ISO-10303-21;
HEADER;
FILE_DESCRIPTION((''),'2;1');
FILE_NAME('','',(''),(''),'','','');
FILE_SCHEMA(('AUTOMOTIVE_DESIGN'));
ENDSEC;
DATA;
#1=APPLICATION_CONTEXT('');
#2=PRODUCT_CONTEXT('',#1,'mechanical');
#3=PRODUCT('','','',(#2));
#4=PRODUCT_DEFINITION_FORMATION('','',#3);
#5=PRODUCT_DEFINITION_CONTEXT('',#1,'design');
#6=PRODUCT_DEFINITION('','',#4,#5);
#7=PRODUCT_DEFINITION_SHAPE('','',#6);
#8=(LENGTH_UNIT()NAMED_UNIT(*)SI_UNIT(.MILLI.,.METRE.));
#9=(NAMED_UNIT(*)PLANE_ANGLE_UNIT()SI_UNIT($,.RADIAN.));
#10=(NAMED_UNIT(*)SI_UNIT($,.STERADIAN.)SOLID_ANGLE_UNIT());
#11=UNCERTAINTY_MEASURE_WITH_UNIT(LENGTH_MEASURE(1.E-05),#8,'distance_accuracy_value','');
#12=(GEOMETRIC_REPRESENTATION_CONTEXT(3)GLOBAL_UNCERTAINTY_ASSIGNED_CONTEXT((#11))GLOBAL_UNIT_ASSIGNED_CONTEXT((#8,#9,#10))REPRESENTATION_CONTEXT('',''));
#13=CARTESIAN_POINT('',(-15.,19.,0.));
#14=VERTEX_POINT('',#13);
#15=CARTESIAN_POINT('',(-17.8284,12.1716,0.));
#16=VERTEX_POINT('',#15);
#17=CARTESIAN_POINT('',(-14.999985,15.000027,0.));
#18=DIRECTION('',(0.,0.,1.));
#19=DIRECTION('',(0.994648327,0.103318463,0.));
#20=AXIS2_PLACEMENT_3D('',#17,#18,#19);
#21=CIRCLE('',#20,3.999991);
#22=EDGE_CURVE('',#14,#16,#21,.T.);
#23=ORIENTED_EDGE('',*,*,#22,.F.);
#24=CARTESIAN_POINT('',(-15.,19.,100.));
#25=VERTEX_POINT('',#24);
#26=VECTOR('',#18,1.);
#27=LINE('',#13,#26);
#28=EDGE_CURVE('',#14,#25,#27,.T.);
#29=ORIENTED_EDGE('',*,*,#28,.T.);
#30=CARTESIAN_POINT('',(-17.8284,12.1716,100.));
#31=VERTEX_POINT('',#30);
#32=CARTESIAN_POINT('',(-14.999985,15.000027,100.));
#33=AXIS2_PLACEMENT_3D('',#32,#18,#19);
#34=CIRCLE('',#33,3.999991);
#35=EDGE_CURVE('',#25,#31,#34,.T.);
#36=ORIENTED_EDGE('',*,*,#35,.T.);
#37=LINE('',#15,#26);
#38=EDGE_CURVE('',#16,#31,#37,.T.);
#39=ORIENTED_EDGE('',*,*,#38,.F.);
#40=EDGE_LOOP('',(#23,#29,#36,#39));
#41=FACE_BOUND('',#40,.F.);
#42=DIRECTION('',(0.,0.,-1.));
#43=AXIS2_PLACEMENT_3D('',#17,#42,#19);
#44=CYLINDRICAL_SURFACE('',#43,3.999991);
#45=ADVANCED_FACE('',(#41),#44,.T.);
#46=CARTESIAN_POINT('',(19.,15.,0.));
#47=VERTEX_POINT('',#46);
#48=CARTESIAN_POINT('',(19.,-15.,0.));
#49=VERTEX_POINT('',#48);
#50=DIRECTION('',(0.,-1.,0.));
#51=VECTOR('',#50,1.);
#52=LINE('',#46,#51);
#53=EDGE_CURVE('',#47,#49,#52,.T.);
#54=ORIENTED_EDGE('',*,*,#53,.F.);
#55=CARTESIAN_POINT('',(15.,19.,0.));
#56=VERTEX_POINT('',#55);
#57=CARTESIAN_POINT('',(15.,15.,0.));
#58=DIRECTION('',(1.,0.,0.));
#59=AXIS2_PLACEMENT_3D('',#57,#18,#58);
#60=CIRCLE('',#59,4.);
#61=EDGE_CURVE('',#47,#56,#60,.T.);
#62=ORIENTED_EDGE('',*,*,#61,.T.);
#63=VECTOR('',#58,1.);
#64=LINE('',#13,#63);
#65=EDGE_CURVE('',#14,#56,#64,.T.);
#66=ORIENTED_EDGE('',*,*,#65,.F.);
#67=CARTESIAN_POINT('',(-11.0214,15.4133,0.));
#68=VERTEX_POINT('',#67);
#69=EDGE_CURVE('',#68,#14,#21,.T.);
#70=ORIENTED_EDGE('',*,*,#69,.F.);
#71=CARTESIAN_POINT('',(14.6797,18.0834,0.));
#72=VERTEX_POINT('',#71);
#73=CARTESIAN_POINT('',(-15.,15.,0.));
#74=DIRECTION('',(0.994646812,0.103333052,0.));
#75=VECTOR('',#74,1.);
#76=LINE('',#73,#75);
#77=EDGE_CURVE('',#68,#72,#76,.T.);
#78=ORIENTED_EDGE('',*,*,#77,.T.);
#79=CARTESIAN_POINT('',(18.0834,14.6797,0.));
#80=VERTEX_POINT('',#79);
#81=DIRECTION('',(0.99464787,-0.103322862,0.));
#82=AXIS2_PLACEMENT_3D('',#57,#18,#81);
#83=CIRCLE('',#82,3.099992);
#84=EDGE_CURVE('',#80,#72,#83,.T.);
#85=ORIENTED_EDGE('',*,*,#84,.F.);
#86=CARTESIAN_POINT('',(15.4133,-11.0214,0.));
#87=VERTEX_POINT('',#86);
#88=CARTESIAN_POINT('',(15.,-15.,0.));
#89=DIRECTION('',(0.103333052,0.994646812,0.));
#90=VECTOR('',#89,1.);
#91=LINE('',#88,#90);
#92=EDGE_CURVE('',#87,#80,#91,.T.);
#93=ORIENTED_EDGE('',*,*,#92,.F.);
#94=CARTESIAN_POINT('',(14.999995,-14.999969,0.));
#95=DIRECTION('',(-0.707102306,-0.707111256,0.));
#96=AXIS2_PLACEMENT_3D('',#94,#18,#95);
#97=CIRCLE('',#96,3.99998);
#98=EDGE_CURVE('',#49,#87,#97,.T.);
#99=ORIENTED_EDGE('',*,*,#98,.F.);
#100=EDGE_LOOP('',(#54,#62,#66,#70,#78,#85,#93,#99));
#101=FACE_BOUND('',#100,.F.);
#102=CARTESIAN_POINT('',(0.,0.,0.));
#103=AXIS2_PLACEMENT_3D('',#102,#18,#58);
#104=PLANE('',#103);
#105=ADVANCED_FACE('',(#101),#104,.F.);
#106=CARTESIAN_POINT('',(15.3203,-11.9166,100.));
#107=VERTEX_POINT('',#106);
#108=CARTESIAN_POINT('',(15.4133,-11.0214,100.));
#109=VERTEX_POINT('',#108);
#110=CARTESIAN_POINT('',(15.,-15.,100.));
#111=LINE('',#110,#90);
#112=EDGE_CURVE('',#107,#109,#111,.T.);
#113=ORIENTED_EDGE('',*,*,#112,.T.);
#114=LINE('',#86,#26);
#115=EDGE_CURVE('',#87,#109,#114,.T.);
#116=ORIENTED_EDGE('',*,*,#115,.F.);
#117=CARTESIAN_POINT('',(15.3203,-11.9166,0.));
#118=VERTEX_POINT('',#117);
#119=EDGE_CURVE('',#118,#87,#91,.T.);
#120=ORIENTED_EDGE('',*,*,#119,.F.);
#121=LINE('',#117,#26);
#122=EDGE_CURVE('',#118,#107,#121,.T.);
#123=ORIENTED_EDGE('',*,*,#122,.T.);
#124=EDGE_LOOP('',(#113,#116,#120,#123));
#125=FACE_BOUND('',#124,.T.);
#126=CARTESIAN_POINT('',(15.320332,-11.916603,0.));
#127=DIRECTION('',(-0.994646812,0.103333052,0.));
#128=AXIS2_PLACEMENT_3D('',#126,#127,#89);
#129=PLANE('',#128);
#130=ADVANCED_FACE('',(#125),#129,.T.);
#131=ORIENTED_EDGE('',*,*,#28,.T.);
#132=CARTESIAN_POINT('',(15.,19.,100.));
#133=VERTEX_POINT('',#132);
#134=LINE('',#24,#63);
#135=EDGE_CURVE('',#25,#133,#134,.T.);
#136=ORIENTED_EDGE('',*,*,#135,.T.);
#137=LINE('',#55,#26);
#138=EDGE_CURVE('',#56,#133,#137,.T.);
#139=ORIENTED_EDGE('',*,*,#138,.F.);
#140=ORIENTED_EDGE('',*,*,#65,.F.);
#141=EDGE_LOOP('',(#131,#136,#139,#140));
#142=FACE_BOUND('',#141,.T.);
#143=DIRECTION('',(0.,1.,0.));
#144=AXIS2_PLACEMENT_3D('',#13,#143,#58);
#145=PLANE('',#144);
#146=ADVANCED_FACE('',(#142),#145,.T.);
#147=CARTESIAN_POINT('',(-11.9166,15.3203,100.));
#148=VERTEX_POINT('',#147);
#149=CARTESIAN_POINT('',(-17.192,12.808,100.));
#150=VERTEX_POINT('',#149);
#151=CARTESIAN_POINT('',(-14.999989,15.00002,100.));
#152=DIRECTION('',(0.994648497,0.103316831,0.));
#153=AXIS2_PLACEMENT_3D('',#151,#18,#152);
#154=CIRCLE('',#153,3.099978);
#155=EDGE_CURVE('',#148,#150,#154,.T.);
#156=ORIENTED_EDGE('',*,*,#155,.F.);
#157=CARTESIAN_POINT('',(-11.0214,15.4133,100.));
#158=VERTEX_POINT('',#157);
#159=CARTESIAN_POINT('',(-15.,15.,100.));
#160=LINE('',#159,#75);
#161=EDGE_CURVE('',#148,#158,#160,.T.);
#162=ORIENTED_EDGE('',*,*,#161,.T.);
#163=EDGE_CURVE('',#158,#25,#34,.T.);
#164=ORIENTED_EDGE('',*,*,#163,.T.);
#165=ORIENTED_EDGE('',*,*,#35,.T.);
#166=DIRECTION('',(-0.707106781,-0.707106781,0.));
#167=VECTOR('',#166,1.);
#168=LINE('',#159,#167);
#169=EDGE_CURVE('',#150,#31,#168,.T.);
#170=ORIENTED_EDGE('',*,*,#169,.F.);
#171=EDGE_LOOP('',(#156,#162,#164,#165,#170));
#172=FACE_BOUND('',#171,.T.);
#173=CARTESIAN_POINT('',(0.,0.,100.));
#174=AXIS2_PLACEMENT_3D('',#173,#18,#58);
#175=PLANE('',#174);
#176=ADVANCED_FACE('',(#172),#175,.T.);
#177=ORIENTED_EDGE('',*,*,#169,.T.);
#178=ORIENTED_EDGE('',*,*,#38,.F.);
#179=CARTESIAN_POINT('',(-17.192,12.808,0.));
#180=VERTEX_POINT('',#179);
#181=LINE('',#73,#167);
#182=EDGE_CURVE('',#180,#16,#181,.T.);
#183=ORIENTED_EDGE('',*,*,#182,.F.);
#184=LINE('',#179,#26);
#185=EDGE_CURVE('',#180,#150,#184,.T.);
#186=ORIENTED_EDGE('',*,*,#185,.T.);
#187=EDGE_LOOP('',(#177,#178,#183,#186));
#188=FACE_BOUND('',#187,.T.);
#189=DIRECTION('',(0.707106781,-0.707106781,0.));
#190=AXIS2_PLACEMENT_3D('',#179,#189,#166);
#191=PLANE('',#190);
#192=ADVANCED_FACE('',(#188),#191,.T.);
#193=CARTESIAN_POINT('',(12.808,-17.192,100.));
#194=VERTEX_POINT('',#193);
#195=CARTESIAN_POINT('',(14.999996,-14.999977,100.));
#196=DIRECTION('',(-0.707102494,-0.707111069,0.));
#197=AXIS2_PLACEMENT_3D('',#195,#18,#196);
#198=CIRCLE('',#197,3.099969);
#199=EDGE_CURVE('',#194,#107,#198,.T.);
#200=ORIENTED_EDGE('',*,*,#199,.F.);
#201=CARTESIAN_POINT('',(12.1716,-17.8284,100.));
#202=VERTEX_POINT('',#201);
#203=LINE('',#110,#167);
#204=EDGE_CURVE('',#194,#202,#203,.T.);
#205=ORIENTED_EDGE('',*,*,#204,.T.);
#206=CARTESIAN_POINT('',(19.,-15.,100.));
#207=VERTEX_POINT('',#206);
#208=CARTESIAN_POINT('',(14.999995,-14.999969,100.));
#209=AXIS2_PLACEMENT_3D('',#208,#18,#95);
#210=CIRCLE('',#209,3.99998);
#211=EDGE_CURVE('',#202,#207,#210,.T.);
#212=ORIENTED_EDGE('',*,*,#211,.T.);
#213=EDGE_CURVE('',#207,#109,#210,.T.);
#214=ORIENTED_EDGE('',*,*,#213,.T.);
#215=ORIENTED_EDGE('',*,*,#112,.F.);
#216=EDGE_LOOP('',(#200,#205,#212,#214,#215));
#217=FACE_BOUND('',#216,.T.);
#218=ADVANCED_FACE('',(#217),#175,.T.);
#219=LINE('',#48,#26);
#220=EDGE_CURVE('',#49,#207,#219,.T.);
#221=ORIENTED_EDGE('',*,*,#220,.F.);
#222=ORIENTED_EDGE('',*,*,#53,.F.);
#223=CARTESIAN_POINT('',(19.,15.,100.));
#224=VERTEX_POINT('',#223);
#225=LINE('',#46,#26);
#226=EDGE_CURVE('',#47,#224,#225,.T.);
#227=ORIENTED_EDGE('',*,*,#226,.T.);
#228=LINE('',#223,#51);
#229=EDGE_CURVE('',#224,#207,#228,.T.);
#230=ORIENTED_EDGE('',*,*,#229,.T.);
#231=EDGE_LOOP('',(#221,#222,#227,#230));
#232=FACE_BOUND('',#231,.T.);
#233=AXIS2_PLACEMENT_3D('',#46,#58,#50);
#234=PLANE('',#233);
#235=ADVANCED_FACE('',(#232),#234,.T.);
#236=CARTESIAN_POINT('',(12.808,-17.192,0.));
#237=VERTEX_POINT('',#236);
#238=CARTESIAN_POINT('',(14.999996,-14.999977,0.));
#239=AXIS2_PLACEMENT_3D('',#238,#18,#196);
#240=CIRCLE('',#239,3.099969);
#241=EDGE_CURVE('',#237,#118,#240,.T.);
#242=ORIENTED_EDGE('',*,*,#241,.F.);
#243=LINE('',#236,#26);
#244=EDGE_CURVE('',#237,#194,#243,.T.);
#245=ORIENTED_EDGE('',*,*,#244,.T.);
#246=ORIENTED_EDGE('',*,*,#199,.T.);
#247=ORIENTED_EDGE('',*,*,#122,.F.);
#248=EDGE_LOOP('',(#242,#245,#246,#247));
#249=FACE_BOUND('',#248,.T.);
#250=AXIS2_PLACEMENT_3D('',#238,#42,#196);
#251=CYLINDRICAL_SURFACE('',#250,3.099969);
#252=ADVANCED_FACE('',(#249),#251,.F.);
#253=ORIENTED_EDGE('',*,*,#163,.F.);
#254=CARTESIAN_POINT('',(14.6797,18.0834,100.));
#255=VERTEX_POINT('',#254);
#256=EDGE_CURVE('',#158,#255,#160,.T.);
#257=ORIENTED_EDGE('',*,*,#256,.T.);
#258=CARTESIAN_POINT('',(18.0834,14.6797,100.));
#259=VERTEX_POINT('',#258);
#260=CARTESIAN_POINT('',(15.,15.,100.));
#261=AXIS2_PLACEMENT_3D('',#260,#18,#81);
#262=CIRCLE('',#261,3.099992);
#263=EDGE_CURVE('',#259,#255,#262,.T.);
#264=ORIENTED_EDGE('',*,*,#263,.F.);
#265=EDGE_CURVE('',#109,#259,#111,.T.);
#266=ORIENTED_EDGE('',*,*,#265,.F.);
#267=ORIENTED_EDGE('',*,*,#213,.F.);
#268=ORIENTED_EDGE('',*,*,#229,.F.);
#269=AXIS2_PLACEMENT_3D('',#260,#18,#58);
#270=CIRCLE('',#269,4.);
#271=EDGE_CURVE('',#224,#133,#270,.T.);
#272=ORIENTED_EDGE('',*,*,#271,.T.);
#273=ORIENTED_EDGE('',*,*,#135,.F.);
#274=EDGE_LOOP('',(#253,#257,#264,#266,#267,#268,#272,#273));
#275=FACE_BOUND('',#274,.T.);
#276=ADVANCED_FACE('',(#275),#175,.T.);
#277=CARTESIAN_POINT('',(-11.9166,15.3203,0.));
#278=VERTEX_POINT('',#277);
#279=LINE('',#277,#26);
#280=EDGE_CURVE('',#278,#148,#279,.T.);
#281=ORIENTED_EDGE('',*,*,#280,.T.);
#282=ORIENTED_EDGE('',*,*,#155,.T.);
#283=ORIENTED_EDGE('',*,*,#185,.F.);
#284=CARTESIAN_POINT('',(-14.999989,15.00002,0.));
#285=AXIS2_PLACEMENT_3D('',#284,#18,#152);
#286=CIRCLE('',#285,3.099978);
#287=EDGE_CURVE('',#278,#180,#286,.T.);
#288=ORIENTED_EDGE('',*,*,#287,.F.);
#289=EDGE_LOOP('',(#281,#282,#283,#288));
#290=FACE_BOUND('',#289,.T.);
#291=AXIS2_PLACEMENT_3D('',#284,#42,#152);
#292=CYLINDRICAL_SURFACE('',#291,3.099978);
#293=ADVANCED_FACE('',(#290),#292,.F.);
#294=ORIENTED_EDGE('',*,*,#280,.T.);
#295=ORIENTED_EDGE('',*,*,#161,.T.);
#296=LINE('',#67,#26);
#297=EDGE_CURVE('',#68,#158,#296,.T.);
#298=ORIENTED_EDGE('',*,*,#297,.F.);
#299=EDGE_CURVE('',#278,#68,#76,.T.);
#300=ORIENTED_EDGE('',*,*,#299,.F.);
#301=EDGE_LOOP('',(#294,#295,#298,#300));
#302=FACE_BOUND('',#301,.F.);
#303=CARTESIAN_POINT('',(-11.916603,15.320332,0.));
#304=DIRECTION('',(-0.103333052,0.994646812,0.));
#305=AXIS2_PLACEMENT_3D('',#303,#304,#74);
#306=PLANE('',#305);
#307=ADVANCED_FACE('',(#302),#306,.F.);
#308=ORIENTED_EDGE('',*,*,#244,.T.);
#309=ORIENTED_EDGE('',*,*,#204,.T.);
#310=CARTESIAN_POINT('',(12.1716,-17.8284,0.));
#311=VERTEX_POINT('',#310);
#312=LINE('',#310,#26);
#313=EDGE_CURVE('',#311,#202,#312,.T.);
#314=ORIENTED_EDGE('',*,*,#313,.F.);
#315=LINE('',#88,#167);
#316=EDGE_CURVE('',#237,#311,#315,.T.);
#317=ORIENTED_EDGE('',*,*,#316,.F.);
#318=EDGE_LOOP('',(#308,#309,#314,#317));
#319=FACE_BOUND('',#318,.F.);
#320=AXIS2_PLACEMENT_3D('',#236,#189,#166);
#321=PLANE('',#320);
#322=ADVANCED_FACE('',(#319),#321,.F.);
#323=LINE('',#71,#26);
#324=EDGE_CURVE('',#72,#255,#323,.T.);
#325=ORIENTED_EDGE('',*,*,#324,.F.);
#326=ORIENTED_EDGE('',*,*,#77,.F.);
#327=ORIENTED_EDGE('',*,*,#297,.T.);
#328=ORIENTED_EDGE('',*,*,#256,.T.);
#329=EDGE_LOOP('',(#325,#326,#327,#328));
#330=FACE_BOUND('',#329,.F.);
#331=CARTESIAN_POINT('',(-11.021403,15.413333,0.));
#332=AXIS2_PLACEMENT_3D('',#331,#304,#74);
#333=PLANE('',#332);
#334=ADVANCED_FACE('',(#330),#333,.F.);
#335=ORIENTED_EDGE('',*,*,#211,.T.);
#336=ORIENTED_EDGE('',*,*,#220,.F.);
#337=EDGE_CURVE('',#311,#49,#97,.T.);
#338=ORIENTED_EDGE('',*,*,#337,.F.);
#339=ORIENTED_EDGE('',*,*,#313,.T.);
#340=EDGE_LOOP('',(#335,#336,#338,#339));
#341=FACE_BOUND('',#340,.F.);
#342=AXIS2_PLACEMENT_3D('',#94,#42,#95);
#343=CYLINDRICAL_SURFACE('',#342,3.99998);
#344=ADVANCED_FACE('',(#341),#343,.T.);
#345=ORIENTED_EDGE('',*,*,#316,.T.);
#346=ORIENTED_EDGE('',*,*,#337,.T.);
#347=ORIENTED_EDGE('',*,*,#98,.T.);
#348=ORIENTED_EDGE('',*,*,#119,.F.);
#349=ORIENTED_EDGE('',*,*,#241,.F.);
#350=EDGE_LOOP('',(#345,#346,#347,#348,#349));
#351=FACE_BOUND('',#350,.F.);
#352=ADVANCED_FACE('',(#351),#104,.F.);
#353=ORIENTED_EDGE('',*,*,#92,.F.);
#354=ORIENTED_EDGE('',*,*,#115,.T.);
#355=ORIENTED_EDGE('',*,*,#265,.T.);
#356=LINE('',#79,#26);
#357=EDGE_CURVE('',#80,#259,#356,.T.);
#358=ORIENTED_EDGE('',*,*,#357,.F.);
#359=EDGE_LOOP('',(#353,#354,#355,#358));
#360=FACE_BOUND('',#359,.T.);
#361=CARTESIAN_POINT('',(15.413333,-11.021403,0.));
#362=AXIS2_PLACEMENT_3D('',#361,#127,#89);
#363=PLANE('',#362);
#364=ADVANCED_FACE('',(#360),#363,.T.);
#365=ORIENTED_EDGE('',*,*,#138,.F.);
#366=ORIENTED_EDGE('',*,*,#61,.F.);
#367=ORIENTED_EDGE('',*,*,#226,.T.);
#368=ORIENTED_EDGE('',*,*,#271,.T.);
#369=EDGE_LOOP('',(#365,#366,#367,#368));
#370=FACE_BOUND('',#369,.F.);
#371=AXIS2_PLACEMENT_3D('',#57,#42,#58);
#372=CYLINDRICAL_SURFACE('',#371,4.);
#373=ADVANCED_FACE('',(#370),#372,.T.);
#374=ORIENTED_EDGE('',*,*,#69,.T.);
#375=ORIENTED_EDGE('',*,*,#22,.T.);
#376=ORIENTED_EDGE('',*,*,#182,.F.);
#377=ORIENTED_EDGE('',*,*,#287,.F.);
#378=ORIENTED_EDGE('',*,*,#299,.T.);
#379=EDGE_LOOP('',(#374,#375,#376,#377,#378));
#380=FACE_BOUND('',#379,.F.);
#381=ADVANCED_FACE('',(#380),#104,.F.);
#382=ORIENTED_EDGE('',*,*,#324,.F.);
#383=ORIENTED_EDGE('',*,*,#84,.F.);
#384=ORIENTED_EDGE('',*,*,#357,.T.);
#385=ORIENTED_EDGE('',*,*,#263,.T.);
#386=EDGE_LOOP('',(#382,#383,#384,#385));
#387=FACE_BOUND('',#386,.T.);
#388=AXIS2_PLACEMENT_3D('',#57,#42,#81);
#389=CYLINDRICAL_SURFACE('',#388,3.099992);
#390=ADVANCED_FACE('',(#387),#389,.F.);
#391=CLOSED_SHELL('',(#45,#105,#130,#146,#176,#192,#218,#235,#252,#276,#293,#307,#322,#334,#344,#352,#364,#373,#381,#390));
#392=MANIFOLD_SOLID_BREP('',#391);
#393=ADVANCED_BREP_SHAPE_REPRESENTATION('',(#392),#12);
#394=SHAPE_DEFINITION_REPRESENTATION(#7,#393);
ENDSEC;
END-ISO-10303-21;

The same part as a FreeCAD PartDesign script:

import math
import FreeCAD as App
import Part
import Sketcher
Q = App.Units.Quantity

doc = App.newDocument("Part")
body = doc.addObject("PartDesign::Body", "Body")

# Sketch on XY plane
sketch1 = doc.addObject("Sketcher::SketchObject", "Sketch")
body.addObject(sketch1)
sketch1.AttachmentSupport = (doc.XY_Plane, [""])
sketch1.MapMode = "FlatFace"
sketch1.addGeometry([
    Part.ArcOfCircle(Part.Circle(App.Vector(-15, 15, 0), App.Vector(0, 0, 1), 3.099992), math.radians(5.930548), math.radians(225)),  # 0
    Part.LineSegment(App.Vector(-11.9166, 15.3203, 0), App.Vector(14.6797, 18.0834, 0)),  # 1
    Part.ArcOfCircle(Part.Circle(App.Vector(15, 15, 0), App.Vector(0, 0, 1), 3.099992), math.radians(-5.930548), math.radians(95.930548)),  # 2
    Part.LineSegment(App.Vector(18.0834, 14.6797, 0), App.Vector(15.3203, -11.9166, 0)),  # 3
    Part.ArcOfCircle(Part.Circle(App.Vector(15, -15, 0), App.Vector(0, 0, 1), 3.099956), math.radians(-135), math.radians(84.069452)),  # 4
    Part.LineSegment(App.Vector(12.808, -17.192, 0), App.Vector(12.1716, -17.8284, 0)),  # 5
    Part.ArcOfCircle(Part.Circle(App.Vector(15, -15, 0), App.Vector(0, 0, 1), 3.999962), math.radians(-135), math.radians(0)),  # 6
    Part.LineSegment(App.Vector(19, -15, 0), App.Vector(19, 15, 0)),  # 7
    Part.ArcOfCircle(Part.Circle(App.Vector(15, 15, 0), App.Vector(0, 0, 1), 4), math.radians(0), math.radians(90)),  # 8
    Part.LineSegment(App.Vector(15, 19, 0), App.Vector(-15, 19, 0)),  # 9
    Part.ArcOfCircle(Part.Circle(App.Vector(-15, 15, 0), App.Vector(0, 0, 1), 4.000009), math.radians(90), math.radians(225)),  # 10
    Part.LineSegment(App.Vector(-17.8284, 12.1716, 0), App.Vector(-17.192, 12.808, 0)),  # 11
], False)
sketch1.addConstraint([
    Sketcher.Constraint("Coincident", 0, 1, 1, 1),
    Sketcher.Constraint("Tangent", 1, 2, 2, 2),
    Sketcher.Constraint("Tangent", 2, 1, 3, 1),
    Sketcher.Constraint("Coincident", 3, 2, 4, 2),
    Sketcher.Constraint("Coincident", 4, 1, 5, 1),
    Sketcher.Constraint("Coincident", 5, 2, 6, 1),
    Sketcher.Constraint("Tangent", 6, 2, 7, 1),
    Sketcher.Constraint("Tangent", 7, 2, 8, 1),
    Sketcher.Constraint("Tangent", 8, 2, 9, 1),
    Sketcher.Constraint("Tangent", 9, 2, 10, 1),
    Sketcher.Constraint("Coincident", 10, 2, 11, 1),
    Sketcher.Constraint("Coincident", 11, 2, 0, 2),
    Sketcher.Constraint("Vertical", 7),
    Sketcher.Constraint("Horizontal", 9),
    Sketcher.Constraint("Coincident", 6, 3, 4, 3),
    Sketcher.Constraint("Coincident", 8, 3, 2, 3),
    Sketcher.Constraint("Coincident", 10, 3, 0, 3),
    Sketcher.Constraint("Equal", 0, 2),
    Sketcher.Constraint("Equal", 2, 4),
    Sketcher.Constraint("Equal", 6, 8),
    Sketcher.Constraint("Equal", 8, 10),
    Sketcher.Constraint("Symmetric", 0, 3, 4, 3, -1, 1),
    Sketcher.Constraint("Parallel", 5, 11),
    Sketcher.Constraint("Equal", 9, 7),
    Sketcher.Constraint("Equal", 1, 3),
    Sketcher.Constraint("Radius", 6, Q("4 mm")),
    Sketcher.Constraint("Radius", 0, Q("3.1 mm")),
    Sketcher.Constraint("Angle", 5, Q("-135 deg")),
    Sketcher.Constraint("DistanceX", 9, 2, 9, 1, Q("30 mm")),
    Sketcher.Constraint("DistanceX", -1, 1, 4, 1, Q("12.808 mm")),
    Sketcher.Constraint("DistanceX", 11, 2, -1, 1, Q("17.192 mm")),
    Sketcher.Constraint("DistanceY", 0, 1, 1, 2, Q("2.763 mm")),
])
pad1 = doc.addObject("PartDesign::Pad", "Pad")
body.addObject(pad1)
pad1.Profile = sketch1
pad1.Length = 100

doc.recompute()
